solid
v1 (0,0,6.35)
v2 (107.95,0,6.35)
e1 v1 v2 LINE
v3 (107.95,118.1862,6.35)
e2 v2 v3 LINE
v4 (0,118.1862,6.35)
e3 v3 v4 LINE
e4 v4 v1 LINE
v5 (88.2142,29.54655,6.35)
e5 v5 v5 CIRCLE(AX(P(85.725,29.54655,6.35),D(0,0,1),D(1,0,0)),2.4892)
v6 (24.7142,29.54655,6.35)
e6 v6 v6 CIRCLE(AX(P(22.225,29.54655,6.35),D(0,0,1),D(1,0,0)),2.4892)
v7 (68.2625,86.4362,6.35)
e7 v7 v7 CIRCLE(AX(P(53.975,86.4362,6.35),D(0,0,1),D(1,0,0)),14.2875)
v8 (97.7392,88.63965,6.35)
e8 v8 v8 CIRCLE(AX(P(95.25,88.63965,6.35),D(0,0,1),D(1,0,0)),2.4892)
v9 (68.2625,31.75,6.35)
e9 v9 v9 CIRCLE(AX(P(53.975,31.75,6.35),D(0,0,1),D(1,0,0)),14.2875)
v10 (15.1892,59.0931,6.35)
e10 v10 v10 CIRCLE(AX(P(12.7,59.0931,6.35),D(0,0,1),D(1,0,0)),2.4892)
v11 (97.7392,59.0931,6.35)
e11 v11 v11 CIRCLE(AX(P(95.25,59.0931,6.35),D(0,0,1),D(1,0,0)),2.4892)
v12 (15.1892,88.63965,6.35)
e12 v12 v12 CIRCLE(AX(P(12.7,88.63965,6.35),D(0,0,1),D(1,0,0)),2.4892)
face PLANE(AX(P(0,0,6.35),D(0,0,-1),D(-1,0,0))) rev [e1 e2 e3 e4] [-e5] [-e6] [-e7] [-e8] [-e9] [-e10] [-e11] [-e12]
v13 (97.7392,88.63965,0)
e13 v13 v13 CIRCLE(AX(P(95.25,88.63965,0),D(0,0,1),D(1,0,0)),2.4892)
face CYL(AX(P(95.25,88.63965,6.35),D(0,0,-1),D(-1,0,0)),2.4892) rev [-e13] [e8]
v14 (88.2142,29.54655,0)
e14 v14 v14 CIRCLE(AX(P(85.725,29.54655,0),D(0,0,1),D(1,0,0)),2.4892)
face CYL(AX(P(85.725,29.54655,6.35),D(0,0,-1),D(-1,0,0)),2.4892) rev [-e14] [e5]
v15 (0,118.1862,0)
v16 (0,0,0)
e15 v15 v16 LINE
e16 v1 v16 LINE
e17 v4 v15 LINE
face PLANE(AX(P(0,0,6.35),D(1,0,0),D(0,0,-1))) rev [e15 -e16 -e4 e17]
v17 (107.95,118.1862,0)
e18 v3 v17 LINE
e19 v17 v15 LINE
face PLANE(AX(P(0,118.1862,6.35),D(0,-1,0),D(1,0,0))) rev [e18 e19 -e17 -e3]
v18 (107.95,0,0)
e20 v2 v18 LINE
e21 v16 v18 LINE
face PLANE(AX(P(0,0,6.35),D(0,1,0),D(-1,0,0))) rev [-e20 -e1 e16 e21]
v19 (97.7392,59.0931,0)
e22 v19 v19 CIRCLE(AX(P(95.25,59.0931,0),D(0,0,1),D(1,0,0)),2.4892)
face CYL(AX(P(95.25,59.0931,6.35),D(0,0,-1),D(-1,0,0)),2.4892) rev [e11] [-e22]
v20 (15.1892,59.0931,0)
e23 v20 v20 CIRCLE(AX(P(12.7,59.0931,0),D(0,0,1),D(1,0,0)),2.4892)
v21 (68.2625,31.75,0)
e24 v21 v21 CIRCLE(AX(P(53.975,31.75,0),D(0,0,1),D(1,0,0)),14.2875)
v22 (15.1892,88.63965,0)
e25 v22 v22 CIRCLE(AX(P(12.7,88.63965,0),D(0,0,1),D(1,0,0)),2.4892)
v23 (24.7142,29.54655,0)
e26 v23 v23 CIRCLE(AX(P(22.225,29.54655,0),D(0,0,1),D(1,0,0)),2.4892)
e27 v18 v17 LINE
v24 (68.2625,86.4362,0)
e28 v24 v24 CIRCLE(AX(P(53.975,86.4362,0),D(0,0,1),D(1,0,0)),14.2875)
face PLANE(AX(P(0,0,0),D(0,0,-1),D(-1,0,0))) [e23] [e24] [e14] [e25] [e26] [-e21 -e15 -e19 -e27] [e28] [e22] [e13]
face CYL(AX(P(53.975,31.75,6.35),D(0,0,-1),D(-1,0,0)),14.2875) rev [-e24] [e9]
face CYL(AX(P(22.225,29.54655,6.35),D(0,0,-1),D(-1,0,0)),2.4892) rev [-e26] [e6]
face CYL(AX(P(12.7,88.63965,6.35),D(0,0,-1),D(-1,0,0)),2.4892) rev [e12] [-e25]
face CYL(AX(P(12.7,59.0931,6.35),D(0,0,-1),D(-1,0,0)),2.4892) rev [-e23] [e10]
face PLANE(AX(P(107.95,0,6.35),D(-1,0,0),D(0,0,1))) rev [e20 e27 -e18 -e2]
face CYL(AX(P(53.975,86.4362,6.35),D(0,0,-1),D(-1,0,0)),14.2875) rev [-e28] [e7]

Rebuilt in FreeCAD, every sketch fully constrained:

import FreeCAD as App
import Part
import Sketcher
from FreeCAD import Vector
Q = App.Units.Quantity

doc = App.newDocument("Part")
body = doc.addObject("PartDesign::Body", "Body")

# Sketch on XY plane
sketch1 = doc.addObject("Sketcher::SketchObject", "Sketch")
body.addObject(sketch1)
sketch1.AttachmentSupport = (doc.XY_Plane, [""])
sketch1.MapMode = "FlatFace"
sketch1.addGeometry([
    Part.LineSegment(Vector(0, 118.2, 0), Vector(0, 0, 0)),  # 0
    Part.LineSegment(Vector(0, 0, 0), Vector(108, 0, 0)),  # 1
    Part.LineSegment(Vector(108, 0, 0), Vector(108, 118.2, 0)),  # 2
    Part.LineSegment(Vector(108, 118.2, 0), Vector(0, 118.2, 0)),  # 3
    Part.Circle(Vector(22.2, 29.5, 0), Vector(0, 0, 1), 2.5),  # 4
    Part.Circle(Vector(54, 31.8, 0), Vector(0, 0, 1), 14.3),  # 5
    Part.Circle(Vector(85.7, 29.5, 0), Vector(0, 0, 1), 2.5),  # 6
    Part.Circle(Vector(12.7, 59.1, 0), Vector(0, 0, 1), 2.5),  # 7
    Part.Circle(Vector(12.7, 88.6, 0), Vector(0, 0, 1), 2.5),  # 8
    Part.Circle(Vector(95.2, 59.1, 0), Vector(0, 0, 1), 2.5),  # 9
    Part.Circle(Vector(54, 86.4, 0), Vector(0, 0, 1), 14.3),  # 10
    Part.Circle(Vector(95.2, 88.6, 0), Vector(0, 0, 1), 2.5),  # 11
], False)
sketch1.addConstraint([
    Sketcher.Constraint("Coincident", 0, 2, 1, 1),
    Sketcher.Constraint("Coincident", 1, 2, 2, 1),
    Sketcher.Constraint("Coincident", 2, 2, 3, 1),
    Sketcher.Constraint("Coincident", 3, 2, 0, 1),
    Sketcher.Constraint("Vertical", 0),
    Sketcher.Constraint("Horizontal", 1),
    Sketcher.Constraint("Vertical", 2),
    Sketcher.Constraint("Horizontal", 3),
    Sketcher.Constraint("Coincident", 0, 2, -1, 1),
    Sketcher.Constraint("Equal", 4, 6),
    Sketcher.Constraint("Equal", 6, 7),
    Sketcher.Constraint("Equal", 7, 8),
    Sketcher.Constraint("Equal", 8, 9),
    Sketcher.Constraint("Equal", 5, 10),
    Sketcher.Constraint("Equal", 9, 11),
    Sketcher.Constraint("Horizontal", 4, 3, 6, 3),
    Sketcher.Constraint("Horizontal", 7, 3, 9, 3),
    Sketcher.Constraint("Horizontal", 8, 3, 11, 3),
    Sketcher.Constraint("Vertical", 7, 3, 8, 3),
    Sketcher.Constraint("Vertical", 5, 3, 10, 3),
    Sketcher.Constraint("Vertical", 9, 3, 11, 3),
    Sketcher.Constraint("Diameter", 4, Q("0.196 in")),
    Sketcher.Constraint("Diameter", 5, Q("1.125 in")),
    Sketcher.Constraint("DistanceX", 1, 1, 1, 2, Q("4.25 in")),
    Sketcher.Constraint("DistanceX", -1, 1, 7, 3, Q("0.5 in")),
    Sketcher.Constraint("DistanceX", 4, 3, 6, 3, Q("2.5 in")),
    Sketcher.Constraint("DistanceX", 9, 3, 1, 2, Q("0.5 in")),
    Sketcher.Constraint("DistanceY", 0, 2, 0, 1, Q("4.653 in")),
    Sketcher.Constraint("DistanceY", -1, 1, 5, 3, Q("1.25 in")),
    Sketcher.Constraint("DistanceX", 4, 3, 5, 3, Q("1.25 in")),
    Sketcher.Constraint("DistanceY", 10, 3, 2, 2, Q("1.25 in")),
    Sketcher.Constraint("DistanceX", -1, 1, 4, 3, Q("0.875 in")),
    Sketcher.Constraint("DistanceY", -1, 1, 7, 3, Q("2.3265 in")),
    Sketcher.Constraint("DistanceY", 4, 3, 8, 3, Q("2.3265 in")),
    Sketcher.Constraint("DistanceY", -1, 1, 4, 3, 29.54655),
])
pad1 = doc.addObject("PartDesign::Pad", "Pad")
body.addObject(pad1)
pad1.Profile = sketch1
pad1.Length = Q("0.25 in")

doc.recompute()
